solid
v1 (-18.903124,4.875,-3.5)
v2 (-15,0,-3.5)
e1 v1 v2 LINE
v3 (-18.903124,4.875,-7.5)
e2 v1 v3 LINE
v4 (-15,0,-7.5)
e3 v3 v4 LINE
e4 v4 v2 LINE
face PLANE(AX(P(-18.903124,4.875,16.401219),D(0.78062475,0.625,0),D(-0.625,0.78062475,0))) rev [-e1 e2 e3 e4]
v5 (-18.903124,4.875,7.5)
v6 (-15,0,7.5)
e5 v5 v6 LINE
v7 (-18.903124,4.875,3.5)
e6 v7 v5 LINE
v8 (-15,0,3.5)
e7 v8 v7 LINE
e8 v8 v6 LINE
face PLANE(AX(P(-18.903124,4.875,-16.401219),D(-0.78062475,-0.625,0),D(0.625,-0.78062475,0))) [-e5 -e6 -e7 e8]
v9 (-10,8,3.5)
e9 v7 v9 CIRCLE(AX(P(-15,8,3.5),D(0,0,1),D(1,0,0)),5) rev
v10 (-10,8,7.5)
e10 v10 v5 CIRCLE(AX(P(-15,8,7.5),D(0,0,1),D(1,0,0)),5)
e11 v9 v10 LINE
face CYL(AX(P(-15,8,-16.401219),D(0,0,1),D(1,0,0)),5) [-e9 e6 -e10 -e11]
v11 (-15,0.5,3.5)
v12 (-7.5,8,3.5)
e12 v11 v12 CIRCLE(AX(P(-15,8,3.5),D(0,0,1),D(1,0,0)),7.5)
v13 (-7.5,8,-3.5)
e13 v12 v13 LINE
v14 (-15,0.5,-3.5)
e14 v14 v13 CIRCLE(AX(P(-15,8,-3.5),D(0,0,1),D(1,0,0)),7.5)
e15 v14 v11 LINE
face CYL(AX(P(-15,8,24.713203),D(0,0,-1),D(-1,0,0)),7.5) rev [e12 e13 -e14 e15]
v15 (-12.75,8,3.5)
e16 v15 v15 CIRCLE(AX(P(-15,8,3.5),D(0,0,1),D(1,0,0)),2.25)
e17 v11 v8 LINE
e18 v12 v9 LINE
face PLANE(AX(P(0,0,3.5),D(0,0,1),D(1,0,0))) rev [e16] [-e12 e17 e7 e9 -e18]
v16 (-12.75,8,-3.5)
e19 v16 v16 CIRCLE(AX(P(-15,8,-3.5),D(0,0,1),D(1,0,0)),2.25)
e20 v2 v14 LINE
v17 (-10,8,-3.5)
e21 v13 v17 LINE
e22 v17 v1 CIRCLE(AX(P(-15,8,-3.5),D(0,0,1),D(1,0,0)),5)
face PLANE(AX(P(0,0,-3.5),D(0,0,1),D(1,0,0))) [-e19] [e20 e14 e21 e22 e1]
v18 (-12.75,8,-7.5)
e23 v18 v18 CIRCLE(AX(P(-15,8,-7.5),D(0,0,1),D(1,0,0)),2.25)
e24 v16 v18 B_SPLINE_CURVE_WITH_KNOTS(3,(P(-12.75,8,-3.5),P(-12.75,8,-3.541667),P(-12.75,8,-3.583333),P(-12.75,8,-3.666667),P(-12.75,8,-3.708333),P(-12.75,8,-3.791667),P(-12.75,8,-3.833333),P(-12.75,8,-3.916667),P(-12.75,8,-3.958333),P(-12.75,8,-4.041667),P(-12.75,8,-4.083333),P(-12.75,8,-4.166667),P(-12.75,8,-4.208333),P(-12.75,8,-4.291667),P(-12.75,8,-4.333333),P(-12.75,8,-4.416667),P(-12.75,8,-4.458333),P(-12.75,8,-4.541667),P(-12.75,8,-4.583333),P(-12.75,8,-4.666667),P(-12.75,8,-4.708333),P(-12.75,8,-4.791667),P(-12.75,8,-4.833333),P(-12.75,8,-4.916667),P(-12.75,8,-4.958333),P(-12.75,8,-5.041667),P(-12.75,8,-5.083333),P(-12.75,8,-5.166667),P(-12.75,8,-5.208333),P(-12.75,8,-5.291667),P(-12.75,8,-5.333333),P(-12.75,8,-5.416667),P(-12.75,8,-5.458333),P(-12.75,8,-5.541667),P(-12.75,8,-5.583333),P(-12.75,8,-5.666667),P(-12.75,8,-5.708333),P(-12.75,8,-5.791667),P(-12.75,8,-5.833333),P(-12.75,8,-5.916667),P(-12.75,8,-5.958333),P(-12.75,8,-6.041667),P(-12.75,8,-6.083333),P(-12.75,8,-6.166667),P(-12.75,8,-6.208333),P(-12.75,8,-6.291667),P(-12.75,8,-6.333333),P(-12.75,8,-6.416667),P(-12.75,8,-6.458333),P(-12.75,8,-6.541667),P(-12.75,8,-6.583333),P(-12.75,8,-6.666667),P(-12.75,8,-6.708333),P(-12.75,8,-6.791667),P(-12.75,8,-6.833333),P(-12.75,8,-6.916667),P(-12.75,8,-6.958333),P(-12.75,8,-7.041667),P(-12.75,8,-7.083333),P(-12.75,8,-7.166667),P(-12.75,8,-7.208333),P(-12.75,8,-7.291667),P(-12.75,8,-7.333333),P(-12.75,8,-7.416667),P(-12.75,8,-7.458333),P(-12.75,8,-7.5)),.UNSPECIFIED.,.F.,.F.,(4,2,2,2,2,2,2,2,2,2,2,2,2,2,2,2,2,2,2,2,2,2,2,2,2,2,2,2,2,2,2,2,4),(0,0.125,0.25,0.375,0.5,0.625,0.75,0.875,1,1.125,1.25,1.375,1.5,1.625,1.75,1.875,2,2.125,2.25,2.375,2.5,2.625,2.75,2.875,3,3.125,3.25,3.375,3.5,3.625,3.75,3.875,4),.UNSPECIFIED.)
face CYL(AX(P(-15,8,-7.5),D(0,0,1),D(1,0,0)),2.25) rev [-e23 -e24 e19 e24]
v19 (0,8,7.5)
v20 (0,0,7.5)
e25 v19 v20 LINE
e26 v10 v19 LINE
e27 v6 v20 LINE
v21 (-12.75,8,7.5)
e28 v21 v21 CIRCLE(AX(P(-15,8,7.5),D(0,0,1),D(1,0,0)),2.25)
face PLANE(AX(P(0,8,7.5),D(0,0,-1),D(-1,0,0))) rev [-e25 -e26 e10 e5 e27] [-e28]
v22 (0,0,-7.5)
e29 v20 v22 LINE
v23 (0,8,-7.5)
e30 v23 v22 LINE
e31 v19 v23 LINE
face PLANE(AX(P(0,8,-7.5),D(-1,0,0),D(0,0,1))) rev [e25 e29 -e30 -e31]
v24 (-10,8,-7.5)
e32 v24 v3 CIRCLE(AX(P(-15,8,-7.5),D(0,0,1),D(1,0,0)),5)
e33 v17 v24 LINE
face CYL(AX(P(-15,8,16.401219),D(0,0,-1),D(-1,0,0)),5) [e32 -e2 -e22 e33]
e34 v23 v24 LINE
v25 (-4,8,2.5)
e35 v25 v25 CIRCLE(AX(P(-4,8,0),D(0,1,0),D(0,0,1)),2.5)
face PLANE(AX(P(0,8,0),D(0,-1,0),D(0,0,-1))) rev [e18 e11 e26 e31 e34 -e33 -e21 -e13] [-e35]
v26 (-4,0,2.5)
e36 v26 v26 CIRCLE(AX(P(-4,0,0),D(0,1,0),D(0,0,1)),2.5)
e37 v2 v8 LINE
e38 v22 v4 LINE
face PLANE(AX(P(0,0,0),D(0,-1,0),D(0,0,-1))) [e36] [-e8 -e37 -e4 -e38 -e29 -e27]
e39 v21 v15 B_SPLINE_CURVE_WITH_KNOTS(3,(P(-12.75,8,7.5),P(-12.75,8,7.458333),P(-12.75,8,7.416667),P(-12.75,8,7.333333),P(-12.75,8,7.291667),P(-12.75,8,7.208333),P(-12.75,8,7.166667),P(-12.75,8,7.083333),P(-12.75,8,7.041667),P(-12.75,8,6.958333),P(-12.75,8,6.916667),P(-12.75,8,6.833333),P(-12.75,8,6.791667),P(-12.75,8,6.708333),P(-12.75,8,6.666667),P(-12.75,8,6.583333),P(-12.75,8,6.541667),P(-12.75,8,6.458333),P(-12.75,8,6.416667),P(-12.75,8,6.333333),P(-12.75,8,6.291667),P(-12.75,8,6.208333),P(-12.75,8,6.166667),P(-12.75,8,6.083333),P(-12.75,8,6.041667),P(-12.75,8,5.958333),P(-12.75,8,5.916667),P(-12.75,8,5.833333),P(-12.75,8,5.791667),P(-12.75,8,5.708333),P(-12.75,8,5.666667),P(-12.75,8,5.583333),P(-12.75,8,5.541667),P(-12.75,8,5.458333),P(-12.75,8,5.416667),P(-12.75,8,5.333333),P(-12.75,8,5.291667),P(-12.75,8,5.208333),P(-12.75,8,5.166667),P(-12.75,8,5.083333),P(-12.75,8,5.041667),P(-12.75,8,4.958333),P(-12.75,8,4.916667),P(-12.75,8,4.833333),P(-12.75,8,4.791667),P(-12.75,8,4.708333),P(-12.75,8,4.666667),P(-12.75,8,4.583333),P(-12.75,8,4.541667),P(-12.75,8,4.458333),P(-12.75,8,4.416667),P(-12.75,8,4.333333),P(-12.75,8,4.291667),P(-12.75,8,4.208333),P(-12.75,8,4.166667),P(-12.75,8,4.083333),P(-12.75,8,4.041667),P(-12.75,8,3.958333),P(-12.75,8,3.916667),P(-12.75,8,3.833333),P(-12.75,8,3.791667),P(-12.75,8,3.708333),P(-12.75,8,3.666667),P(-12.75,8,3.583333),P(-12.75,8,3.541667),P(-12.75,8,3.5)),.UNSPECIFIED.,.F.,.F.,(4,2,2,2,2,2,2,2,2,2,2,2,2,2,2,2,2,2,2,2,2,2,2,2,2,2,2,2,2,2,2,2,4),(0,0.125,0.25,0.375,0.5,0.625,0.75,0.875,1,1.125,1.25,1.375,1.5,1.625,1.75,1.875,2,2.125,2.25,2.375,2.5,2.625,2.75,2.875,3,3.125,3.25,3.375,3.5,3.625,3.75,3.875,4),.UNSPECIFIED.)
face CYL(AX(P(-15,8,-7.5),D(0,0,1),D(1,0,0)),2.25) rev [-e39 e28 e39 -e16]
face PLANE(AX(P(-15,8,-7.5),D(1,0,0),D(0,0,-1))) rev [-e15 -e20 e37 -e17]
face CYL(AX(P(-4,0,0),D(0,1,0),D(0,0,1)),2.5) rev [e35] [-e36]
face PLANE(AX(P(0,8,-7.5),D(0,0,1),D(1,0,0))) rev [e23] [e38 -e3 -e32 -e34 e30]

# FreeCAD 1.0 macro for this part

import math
import FreeCAD as App
import Part
import Sketcher
from FreeCAD import Vector

doc = App.newDocument("Part")
body = doc.addObject("PartDesign::Body", "Body")

# Sketch on XZ plane
sketch1 = body.newObject("Sketcher::SketchObject", "Sketch")
sketch1.AttachmentSupport = (doc.getObject("XZ_Plane"), [""])
sketch1.MapMode = "FlatFace"
sketch1.addGeometry([
    Part.LineSegment(Vector(-15, -8, 0), Vector(-15, 8, 0)),
    Part.LineSegment(Vector(-15, 8, 0), Vector(0, 8, 0)),
    Part.LineSegment(Vector(0, 8, 0), Vector(0, -8, 0)),
    Part.LineSegment(Vector(0, -8, 0), Vector(-15, -8, 0)),
], False)
sketch1.addConstraint([
    Sketcher.Constraint("Coincident", 0, 2, 1, 1),
    Sketcher.Constraint("Coincident", 1, 2, 2, 1),
    Sketcher.Constraint("Coincident", 2, 2, 3, 1),
    Sketcher.Constraint("Coincident", 3, 2, 0, 1),
    Sketcher.Constraint("Vertical", 0),
    Sketcher.Constraint("Horizontal", 1),
    Sketcher.Constraint("Vertical", 2),
    Sketcher.Constraint("Horizontal", 3),
    Sketcher.Constraint("Symmetric", 1, 2, 2, 2, -1, 1),
    Sketcher.Constraint("Equal", 3, 0),
    Sketcher.Constraint("DistanceX", 1, 1, 1, 2, 15.0),
])
pad1 = body.newObject("PartDesign::Pad", "Pad")
pad1.Profile = sketch1
pad1.Length = 8
pad1.Reversed = True

# Sketch on XY plane
sketch2 = body.newObject("Sketcher::SketchObject", "Sketch001")
sketch2.AttachmentSupport = (doc.getObject("XY_Plane"), [""])
sketch2.MapMode = "FlatFace"
sketch2.AttachmentOffset = App.Placement(Vector(0, 0, 7.5), App.Rotation())
sketch2.addGeometry([
    Part.LineSegment(Vector(-18.9, 4.9, 0), Vector(-15, 0, 0)),
    Part.LineSegment(Vector(-15, 0, 0), Vector(-15, 3, 0)),
    Part.ArcOfCircle(Part.Circle(Vector(-15, 8, 0), Vector(0, 0, 1), 5), math.radians(-90), math.radians(219)),
], False)
sketch2.addConstraint([
    Sketcher.Constraint("Coincident", 0, 2, 1, 1),
    Sketcher.Constraint("Coincident", 1, 2, 2, 1),
    Sketcher.Constraint("Tangent", 2, 2, 0, 1),
    Sketcher.Constraint("Vertical", 1),
    Sketcher.Constraint("PointOnObject", 0, 2, -1),
    Sketcher.Constraint("Vertical", 2, 3, 0, 2),
    Sketcher.Constraint("Radius", 2, 5.0),
    Sketcher.Constraint("DistanceY", 1, 1, 1, 2, 3.0),
    Sketcher.Constraint("DistanceX", 2, 3, -1, 1, 15.0),
])
pad2 = body.newObject("PartDesign::Pad", "Pad001")
pad2.Profile = sketch2
pad2.Length = 4
pad2.Reversed = True
doc.recompute()

mirrored = body.newObject("PartDesign::Mirrored", "Mirrored")
mirrored.Originals = [pad2]
mirrored.MirrorPlane = (doc.getObject("XY_Plane"), [""])
body.Tip = mirrored

# Sketch on XY plane
sketch3 = body.newObject("Sketcher::SketchObject", "Sketch002")
sketch3.AttachmentSupport = (doc.getObject("XY_Plane"), [""])
sketch3.MapMode = "FlatFace"
sketch3.AttachmentOffset = App.Placement(Vector(0, 0, -3.5), App.Rotation())
sketch3.addGeometry(Part.Circle(Vector(-15, 8, 0), Vector(0, 0, 1), 8), False)
sketch3.addConstraint([
    Sketcher.Constraint("Diameter", 0, 15.0),
    Sketcher.Constraint("DistanceX", 0, 3, -1, 1, 15.0),
    Sketcher.Constraint("DistanceY", -1, 1, 0, 3, 8.0),
])
pocket1 = body.newObject("PartDesign::Pocket", "Pocket")
pocket1.Profile = sketch3
pocket1.Length = 7
pocket1.Reversed = True

# Sketch on XY plane
sketch4 = body.newObject("Sketcher::SketchObject", "Sketch003")
sketch4.AttachmentSupport = (doc.getObject("XY_Plane"), [""])
sketch4.MapMode = "FlatFace"
sketch4.AttachmentOffset = App.Placement(Vector(0, 0, 7.5), App.Rotation())
sketch4.addGeometry(Part.Circle(Vector(-15, 8, 0), Vector(0, 0, 1), 2.2), False)
sketch4.addConstraint([
    Sketcher.Constraint("Diameter", 0, 4.5),
    Sketcher.Constraint("DistanceX", 0, 3, -1, 1, 15.0),
    Sketcher.Constraint("DistanceY", -1, 1, 0, 3, 8.0),
])
pocket2 = body.newObject("PartDesign::Pocket", "Pocket001")
pocket2.Profile = sketch4
pocket2.Type = "ThroughAll"

# Sketch on XZ plane
sketch5 = body.newObject("Sketcher::SketchObject", "Sketch004")
sketch5.AttachmentSupport = (doc.getObject("XZ_Plane"), [""])
sketch5.MapMode = "FlatFace"
sketch5.AttachmentOffset = App.Placement(Vector(0, 0, -8), App.Rotation())
sketch5.addGeometry(Part.Circle(Vector(-4, 0, 0), Vector(0, 0, 1), 2.5), False)
sketch5.addConstraint([
    Sketcher.Constraint("PointOnObject", 0, 3, -1),
    Sketcher.Constraint("Diameter", 0, 5.0),
    Sketcher.Constraint("DistanceX", 0, 3, -1, 1, 4.0),
])
pocket3 = body.newObject("PartDesign::Pocket", "Pocket002")
pocket3.Profile = sketch5
pocket3.Type = "ThroughAll"
pocket3.Reversed = True

doc.recompute()
